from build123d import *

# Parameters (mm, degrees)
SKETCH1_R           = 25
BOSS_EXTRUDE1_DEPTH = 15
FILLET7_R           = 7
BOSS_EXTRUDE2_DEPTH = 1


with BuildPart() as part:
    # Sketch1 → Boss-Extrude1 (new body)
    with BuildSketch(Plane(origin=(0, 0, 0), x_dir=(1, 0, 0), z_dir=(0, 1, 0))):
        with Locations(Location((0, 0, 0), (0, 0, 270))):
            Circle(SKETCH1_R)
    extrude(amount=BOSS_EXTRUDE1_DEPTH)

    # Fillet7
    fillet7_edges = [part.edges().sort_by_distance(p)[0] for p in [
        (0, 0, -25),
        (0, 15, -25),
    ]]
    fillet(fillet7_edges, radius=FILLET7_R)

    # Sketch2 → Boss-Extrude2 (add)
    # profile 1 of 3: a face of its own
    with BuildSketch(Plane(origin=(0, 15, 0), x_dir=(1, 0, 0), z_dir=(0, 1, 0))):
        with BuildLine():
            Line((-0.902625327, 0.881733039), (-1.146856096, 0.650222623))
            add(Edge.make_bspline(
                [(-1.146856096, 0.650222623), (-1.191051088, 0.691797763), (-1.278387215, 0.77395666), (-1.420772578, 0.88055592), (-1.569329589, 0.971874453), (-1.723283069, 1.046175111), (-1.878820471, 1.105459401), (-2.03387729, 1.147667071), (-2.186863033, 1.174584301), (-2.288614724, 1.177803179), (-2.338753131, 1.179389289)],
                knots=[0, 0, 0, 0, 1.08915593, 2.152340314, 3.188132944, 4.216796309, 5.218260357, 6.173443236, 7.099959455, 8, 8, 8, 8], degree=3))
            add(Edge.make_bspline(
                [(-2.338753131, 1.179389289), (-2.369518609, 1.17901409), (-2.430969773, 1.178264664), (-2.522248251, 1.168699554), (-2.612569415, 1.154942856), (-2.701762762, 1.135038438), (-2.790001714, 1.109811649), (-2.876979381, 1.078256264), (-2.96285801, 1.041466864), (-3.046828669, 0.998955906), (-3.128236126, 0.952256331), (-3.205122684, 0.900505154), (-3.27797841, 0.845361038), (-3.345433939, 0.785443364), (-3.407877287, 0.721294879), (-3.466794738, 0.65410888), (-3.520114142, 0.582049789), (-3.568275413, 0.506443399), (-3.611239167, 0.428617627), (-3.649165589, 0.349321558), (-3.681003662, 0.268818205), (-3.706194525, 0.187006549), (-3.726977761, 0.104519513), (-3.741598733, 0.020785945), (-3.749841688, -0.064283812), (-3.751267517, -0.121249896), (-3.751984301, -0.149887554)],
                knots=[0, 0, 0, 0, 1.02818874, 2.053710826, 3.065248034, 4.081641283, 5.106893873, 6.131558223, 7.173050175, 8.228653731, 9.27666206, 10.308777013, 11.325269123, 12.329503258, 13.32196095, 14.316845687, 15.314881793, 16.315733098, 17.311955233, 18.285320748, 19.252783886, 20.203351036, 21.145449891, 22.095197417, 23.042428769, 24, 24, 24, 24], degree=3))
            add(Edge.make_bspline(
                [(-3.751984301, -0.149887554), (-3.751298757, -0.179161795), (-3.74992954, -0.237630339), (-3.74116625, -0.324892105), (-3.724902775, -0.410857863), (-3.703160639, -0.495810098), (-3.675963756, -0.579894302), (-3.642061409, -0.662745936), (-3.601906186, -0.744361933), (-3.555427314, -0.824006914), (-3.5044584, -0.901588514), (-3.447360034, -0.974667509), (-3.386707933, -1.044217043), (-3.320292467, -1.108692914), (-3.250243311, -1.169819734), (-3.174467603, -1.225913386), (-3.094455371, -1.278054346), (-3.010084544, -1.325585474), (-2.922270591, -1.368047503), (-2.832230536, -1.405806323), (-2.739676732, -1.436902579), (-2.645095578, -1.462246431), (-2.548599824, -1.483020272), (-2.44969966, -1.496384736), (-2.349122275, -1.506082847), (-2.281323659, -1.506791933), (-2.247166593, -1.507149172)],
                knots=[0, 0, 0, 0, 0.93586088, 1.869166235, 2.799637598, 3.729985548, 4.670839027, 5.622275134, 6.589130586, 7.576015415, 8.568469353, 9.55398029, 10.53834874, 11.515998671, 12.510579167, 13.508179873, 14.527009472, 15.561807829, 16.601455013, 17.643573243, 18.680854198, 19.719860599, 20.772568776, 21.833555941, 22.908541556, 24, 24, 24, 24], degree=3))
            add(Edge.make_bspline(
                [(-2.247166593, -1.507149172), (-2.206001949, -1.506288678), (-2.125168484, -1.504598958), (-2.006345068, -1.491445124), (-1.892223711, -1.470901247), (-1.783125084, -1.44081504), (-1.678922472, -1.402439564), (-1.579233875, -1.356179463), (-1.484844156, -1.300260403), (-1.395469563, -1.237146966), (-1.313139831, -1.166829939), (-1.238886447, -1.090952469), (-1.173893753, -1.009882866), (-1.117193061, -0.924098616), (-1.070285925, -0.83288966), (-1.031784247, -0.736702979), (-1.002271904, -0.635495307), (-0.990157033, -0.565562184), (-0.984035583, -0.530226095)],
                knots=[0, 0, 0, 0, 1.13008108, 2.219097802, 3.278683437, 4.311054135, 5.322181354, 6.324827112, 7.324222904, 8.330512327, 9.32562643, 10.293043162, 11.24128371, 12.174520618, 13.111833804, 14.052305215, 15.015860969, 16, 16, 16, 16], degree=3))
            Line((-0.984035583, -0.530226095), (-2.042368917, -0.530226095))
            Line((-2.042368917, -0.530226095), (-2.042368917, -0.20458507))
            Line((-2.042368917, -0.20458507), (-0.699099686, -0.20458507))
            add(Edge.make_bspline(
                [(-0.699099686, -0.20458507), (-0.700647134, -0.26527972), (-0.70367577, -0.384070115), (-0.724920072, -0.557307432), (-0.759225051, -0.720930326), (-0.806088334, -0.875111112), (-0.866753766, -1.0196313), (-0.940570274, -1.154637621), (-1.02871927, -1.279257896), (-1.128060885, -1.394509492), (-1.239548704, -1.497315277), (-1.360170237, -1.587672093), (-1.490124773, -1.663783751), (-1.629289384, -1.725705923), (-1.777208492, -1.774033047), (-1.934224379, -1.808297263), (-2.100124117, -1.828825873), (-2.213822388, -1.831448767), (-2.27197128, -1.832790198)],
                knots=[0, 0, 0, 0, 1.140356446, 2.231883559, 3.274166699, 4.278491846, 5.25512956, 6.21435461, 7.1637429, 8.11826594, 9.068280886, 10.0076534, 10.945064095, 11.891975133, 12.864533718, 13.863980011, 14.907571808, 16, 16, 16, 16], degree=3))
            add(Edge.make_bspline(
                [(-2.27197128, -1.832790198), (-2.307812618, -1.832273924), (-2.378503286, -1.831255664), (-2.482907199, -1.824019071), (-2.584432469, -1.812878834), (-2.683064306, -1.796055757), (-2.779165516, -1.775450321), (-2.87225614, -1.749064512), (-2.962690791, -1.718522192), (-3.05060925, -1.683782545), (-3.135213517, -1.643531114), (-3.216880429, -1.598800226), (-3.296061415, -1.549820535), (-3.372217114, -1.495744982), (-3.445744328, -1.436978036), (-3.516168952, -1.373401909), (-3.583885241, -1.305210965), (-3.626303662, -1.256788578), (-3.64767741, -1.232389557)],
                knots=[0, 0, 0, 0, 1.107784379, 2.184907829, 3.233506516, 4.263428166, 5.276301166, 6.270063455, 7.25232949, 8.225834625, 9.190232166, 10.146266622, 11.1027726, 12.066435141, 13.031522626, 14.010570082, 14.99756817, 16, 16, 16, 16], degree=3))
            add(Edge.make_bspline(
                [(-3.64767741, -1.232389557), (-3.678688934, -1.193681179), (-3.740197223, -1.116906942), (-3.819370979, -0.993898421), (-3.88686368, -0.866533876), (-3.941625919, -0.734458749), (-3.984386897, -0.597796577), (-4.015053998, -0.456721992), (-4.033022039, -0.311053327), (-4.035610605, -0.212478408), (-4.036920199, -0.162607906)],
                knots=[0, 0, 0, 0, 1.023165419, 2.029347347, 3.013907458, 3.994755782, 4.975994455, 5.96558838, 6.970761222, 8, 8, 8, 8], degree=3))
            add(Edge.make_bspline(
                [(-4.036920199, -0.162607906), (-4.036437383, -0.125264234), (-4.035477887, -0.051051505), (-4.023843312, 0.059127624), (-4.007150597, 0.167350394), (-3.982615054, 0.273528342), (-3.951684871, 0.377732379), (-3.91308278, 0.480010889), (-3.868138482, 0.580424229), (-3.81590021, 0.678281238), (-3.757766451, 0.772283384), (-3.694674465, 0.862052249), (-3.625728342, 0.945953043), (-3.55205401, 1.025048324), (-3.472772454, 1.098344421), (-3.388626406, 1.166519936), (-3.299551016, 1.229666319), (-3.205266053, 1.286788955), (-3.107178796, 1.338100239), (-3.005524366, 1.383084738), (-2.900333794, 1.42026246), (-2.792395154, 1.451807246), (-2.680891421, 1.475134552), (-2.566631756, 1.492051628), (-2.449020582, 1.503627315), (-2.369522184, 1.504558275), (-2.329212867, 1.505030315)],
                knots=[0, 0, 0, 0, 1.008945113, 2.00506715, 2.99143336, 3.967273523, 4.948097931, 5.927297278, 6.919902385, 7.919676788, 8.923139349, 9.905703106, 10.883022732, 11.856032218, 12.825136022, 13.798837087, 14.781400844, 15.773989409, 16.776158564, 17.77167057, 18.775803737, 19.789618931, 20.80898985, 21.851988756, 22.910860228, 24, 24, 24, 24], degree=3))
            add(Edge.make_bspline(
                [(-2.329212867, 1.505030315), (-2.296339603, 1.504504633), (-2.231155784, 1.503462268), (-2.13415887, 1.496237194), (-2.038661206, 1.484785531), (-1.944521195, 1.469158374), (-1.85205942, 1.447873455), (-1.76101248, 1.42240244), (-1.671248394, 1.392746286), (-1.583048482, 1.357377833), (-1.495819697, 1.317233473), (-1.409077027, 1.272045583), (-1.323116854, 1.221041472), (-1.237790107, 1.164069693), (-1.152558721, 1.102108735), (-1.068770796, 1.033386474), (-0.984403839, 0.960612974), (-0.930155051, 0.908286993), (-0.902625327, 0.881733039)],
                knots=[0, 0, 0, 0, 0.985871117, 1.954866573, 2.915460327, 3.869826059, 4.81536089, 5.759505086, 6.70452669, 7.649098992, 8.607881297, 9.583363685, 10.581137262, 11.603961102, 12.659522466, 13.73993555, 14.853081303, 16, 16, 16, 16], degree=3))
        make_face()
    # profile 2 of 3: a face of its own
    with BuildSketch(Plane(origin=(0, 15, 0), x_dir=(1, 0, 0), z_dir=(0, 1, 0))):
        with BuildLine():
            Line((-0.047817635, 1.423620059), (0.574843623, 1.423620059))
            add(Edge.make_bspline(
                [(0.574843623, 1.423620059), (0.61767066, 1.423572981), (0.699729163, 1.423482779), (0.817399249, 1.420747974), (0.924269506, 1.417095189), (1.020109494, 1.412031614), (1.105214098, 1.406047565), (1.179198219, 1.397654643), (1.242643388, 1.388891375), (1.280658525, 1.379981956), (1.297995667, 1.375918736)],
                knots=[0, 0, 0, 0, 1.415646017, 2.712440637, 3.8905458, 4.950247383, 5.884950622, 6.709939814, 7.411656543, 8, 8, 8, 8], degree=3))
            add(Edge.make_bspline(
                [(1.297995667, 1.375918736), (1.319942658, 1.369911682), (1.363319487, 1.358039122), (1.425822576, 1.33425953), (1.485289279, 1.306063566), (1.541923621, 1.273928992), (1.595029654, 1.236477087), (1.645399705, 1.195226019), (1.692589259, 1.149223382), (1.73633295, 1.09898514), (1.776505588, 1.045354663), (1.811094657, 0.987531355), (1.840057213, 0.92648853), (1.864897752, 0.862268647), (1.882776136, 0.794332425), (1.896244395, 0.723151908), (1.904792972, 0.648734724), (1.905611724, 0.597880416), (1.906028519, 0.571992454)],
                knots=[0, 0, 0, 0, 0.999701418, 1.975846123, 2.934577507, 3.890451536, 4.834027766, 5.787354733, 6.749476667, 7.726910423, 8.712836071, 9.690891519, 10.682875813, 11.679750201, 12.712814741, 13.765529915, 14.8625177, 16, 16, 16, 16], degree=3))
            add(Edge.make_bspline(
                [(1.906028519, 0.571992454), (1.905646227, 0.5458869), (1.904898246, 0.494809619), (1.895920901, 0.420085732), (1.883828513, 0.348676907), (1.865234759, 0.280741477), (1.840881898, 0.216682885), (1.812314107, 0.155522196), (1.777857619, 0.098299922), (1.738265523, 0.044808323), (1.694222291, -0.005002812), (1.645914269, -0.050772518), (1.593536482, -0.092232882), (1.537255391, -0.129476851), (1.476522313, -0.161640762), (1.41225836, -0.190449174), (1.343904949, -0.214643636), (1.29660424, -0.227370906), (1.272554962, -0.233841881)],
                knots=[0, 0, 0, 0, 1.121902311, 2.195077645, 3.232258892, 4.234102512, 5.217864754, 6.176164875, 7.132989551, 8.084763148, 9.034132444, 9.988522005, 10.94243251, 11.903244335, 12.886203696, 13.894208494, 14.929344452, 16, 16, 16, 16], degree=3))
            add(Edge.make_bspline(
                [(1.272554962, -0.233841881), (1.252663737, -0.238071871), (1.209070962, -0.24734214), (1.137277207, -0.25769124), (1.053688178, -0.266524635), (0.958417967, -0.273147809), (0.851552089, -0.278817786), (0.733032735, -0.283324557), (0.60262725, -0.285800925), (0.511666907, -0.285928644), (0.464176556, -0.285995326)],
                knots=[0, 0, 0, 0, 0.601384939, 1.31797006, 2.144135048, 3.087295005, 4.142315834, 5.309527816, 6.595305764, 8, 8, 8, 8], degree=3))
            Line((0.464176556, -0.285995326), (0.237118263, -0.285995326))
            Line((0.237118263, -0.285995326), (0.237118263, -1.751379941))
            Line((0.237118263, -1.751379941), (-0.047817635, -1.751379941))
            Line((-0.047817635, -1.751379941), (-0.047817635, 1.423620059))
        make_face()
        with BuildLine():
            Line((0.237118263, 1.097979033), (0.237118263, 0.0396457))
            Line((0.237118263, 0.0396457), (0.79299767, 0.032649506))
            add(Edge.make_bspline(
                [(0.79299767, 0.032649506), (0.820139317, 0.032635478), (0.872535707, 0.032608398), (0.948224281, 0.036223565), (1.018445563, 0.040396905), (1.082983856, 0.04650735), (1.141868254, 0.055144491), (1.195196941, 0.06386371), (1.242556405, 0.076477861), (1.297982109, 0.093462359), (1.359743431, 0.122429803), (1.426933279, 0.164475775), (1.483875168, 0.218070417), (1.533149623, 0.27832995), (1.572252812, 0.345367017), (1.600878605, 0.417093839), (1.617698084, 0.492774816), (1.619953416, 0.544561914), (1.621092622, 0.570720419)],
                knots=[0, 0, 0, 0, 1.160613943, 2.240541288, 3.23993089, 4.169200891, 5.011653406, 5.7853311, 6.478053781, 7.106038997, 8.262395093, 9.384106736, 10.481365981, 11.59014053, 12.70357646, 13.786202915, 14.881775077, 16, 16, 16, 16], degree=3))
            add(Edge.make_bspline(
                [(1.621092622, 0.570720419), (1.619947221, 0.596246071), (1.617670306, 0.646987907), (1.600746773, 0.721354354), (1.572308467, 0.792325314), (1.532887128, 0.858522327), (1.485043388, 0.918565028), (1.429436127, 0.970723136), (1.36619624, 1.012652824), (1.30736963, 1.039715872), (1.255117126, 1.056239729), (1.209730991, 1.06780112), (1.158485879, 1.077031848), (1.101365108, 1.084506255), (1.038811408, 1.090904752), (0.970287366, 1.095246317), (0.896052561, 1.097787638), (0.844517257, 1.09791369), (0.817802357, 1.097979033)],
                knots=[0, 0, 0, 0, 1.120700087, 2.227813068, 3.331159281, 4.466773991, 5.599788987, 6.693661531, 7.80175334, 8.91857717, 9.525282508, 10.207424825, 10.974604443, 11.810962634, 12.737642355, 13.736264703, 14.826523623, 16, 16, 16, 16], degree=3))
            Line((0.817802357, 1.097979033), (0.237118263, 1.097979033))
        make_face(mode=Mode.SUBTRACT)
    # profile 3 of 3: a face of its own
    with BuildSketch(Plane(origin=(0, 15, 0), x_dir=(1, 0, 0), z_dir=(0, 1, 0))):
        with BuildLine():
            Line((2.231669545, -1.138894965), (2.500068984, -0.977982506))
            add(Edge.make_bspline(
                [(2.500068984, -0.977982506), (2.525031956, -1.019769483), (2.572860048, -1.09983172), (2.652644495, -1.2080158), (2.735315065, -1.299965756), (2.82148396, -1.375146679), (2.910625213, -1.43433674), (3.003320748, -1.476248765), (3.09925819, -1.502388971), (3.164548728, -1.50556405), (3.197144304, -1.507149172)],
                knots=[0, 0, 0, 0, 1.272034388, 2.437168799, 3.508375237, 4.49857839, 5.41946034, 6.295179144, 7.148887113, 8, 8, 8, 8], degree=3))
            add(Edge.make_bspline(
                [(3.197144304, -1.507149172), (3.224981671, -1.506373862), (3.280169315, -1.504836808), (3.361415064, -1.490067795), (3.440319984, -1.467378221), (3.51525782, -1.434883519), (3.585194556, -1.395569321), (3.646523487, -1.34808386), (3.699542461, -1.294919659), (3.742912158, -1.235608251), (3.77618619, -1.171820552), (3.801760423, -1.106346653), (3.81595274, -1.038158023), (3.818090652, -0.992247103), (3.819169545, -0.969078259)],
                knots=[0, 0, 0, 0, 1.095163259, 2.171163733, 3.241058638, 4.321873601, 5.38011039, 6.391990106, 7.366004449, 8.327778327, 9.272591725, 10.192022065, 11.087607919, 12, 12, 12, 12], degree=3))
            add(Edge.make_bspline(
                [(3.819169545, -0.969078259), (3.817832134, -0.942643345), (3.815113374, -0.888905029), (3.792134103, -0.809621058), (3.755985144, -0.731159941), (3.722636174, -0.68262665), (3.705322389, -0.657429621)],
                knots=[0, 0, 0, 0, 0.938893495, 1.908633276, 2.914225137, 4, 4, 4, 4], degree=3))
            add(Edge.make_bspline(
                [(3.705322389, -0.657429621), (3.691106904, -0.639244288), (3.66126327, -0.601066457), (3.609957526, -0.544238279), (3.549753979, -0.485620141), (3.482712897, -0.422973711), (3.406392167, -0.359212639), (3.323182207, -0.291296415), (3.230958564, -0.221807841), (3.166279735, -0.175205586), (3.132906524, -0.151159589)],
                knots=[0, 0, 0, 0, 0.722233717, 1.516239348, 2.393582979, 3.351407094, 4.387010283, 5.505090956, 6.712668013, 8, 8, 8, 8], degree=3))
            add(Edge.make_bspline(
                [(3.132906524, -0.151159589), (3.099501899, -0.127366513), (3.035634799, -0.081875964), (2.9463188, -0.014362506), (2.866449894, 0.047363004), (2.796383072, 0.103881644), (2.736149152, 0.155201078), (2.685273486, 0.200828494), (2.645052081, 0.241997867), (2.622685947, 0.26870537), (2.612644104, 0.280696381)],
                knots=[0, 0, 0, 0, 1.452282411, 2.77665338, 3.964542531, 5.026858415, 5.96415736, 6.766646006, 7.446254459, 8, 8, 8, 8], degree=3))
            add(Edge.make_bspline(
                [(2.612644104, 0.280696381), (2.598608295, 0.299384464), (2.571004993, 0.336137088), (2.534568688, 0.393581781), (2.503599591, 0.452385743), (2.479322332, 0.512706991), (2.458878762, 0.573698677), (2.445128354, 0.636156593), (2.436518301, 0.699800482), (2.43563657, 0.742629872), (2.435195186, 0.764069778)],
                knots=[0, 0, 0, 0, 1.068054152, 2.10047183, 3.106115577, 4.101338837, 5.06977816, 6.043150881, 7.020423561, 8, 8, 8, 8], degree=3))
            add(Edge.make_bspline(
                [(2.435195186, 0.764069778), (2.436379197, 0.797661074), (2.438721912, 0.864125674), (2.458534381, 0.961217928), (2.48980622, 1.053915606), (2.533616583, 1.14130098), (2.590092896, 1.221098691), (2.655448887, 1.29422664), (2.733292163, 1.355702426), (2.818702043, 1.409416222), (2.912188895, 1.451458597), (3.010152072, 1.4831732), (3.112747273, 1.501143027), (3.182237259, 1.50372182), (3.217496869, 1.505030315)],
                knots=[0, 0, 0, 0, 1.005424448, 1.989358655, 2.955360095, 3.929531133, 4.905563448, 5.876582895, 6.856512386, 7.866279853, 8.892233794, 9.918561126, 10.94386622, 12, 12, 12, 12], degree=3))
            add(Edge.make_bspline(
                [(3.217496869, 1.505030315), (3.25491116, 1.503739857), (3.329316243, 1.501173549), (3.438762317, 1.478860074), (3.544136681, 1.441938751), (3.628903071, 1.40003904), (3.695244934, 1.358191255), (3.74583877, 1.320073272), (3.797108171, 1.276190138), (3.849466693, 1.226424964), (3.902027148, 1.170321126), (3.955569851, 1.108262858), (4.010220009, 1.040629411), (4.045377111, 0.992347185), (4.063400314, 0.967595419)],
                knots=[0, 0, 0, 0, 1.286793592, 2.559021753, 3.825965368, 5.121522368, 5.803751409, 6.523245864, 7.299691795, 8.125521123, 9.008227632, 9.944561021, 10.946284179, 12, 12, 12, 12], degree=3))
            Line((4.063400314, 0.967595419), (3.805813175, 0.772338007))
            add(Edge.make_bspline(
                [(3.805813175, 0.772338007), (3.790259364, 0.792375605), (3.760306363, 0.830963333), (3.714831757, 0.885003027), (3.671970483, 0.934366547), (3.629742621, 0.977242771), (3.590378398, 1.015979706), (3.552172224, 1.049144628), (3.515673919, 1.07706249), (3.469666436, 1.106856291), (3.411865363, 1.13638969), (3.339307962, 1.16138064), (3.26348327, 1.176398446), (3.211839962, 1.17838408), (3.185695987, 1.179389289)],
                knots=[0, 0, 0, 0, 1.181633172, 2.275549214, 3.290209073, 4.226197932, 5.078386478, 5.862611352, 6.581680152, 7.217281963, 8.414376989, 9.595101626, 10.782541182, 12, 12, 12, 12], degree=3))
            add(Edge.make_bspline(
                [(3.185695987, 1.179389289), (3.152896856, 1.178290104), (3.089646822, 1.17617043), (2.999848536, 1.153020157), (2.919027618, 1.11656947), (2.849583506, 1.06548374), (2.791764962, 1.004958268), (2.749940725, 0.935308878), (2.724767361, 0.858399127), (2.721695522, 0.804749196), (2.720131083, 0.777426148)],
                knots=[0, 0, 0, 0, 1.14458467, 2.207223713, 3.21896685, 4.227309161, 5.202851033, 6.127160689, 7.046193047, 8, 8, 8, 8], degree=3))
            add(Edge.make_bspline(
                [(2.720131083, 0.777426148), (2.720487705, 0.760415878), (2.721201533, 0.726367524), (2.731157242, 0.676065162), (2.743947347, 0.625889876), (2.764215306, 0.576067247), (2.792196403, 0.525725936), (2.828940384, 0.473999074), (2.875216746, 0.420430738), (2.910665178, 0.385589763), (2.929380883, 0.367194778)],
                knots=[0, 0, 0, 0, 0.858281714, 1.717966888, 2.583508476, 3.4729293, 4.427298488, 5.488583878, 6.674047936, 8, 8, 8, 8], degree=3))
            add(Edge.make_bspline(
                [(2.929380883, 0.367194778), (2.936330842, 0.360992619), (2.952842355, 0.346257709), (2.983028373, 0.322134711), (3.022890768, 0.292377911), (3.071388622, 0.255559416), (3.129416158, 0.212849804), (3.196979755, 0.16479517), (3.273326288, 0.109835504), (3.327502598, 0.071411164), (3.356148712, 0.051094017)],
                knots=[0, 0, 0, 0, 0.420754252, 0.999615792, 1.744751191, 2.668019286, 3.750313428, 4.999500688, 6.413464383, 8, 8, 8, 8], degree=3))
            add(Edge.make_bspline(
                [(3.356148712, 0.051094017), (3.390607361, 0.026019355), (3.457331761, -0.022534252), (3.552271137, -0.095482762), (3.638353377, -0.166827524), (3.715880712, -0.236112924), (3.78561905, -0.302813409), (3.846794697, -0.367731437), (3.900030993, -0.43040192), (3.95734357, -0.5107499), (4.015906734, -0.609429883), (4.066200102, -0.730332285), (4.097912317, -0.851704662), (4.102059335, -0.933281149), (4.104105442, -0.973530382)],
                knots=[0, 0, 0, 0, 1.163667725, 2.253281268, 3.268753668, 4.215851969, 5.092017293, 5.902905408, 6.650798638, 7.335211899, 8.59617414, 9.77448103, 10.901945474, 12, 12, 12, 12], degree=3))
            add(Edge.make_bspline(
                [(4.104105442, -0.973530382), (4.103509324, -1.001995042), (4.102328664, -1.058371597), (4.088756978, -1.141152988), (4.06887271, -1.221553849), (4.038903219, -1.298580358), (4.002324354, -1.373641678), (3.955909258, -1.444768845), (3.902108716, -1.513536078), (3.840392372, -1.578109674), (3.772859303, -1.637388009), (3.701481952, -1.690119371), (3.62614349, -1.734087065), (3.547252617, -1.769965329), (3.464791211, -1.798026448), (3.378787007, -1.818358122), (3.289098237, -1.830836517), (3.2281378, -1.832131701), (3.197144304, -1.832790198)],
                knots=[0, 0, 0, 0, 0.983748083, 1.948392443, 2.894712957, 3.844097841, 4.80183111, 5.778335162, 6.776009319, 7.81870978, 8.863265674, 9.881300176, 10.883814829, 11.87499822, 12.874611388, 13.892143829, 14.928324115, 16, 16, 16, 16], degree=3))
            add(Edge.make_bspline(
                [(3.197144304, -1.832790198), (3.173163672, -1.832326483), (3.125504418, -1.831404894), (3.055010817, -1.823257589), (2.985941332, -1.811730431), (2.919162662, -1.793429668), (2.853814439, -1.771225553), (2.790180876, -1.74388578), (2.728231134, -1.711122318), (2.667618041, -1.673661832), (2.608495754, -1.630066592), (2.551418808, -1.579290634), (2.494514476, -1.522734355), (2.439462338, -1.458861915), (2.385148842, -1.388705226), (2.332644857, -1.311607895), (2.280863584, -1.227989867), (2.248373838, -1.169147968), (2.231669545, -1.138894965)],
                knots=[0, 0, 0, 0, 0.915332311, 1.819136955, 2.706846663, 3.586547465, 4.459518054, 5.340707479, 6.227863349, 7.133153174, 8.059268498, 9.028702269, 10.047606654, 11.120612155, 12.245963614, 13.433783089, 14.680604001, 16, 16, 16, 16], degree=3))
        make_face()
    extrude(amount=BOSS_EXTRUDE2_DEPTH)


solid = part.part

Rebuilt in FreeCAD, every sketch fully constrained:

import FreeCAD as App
import Part
import Sketcher
Q = App.Units.Quantity


def edges_at(feature, points):
    """Names of the edges that pass closest to the given points."""
    edges = feature.Shape.Edges
    near = lambda p: min(range(len(edges)), key=lambda i: edges[i].distToShape(Part.Vertex(*p))[0])
    return sorted({f"Edge{near(p) + 1}" for p in points})

doc = App.newDocument("Part")
body = doc.addObject("PartDesign::Body", "Body")

# Sketch on XZ plane
sketch1 = body.newObject("Sketcher::SketchObject", "Sketch")
sketch1.AttachmentSupport = (doc.getObject("XZ_Plane"), [""])
sketch1.MapMode = "FlatFace"
sketch1.addGeometry(Part.Circle(App.Vector(0, 0, 0), App.Vector(0, 0, 1), 25), False)
sketch1.addConstraint([
    Sketcher.Constraint("Coincident", 0, 3, -1, 1),
    Sketcher.Constraint("Diameter", 0, Q("50 mm")),
])
pad1 = body.newObject("PartDesign::Pad", "Pad")
pad1.Profile = sketch1
pad1.Length = 15
pad1.Reversed = True
doc.recompute()

fillet = body.newObject("PartDesign::Fillet", "Fillet")
fillet.Base = (pad1, edges_at(pad1, [(0, 0, -25), (0, 15, -25)]))
fillet.Radius = 7

# Sketch on XZ plane
sketch2 = body.newObject("Sketcher::SketchObject", "Sketch001")
sketch2.AttachmentSupport = (doc.getObject("XZ_Plane"), [""])
sketch2.MapMode = "FlatFace"
sketch2.AttachmentOffset = App.Placement(App.Vector(0, 0, -15), App.Rotation())
sketch2.addGeometry([
    Part.LineSegment(App.Vector(-1.146856, -0.650223, 0), App.Vector(-0.902625, -0.881733, 0)),  # 0
    Part.BSplineCurve([App.Vector(-2.329213, -1.50503, 0), App.Vector(-2.29634, -1.504505, 0), App.Vector(-2.231156, -1.503462, 0), App.Vector(-2.134159, -1.496237, 0), App.Vector(-2.038661, -1.484786, 0), App.Vector(-1.944521, -1.469158, 0), App.Vector(-1.852059, -1.447873, 0), App.Vector(-1.761012, -1.422402, 0), App.Vector(-1.671248, -1.392746, 0), App.Vector(-1.583048, -1.357378, 0), App.Vector(-1.49582, -1.317233, 0), App.Vector(-1.409077, -1.272046, 0), App.Vector(-1.323117, -1.221041, 0), App.Vector(-1.23779, -1.16407, 0), App.Vector(-1.152559, -1.102109, 0), App.Vector(-1.068771, -1.033386, 0), App.Vector(-0.984404, -0.960613, 0), App.Vector(-0.930155, -0.908287, 0), App.Vector(-0.902625, -0.881733, 0)], [4, 1, 1, 1, 1, 1, 1, 1, 1, 1, 1, 1, 1, 1, 1, 1, 4], [0, 0.985871117, 1.954866573, 2.915460327, 3.869826059, 4.81536089, 5.759505086, 6.70452669, 7.649098992, 8.607881297, 9.583363685, 10.581137262, 11.603961102, 12.659522466, 13.73993555, 14.853081303, 16], False, 3, [1, 1, 1, 1, 1, 1, 1, 1, 1, 1, 1, 1, 1, 1, 1, 1, 1, 1, 1], False),  # 1
    Part.BSplineCurve([App.Vector(-4.03692, 0.162608, 0), App.Vector(-4.036437, 0.125264, 0), App.Vector(-4.035478, 0.051052, 0), App.Vector(-4.023843, -0.059128, 0), App.Vector(-4.007151, -0.16735, 0), App.Vector(-3.982615, -0.273528, 0), App.Vector(-3.951685, -0.377732, 0), App.Vector(-3.913083, -0.480011, 0), App.Vector(-3.868138, -0.580424, 0), App.Vector(-3.8159, -0.678281, 0), App.Vector(-3.757766, -0.772283, 0), App.Vector(-3.694674, -0.862052, 0), App.Vector(-3.625728, -0.945953, 0), App.Vector(-3.552054, -1.025048, 0), App.Vector(-3.472772, -1.098344, 0), App.Vector(-3.388626, -1.16652, 0), App.Vector(-3.299551, -1.229666, 0), App.Vector(-3.205266, -1.286789, 0), App.Vector(-3.107179, -1.3381, 0), App.Vector(-3.005524, -1.383085, 0), App.Vector(-2.900334, -1.420262, 0), App.Vector(-2.792395, -1.451807, 0), App.Vector(-2.680891, -1.475135, 0), App.Vector(-2.566632, -1.492052, 0), App.Vector(-2.449021, -1.503627, 0), App.Vector(-2.369522, -1.504558, 0), App.Vector(-2.329213, -1.50503, 0)], [4, 1, 1, 1, 1, 1, 1, 1, 1, 1, 1, 1, 1, 1, 1, 1, 1, 1, 1, 1, 1, 1, 1, 1, 4], [0, 1.008945113, 2.00506715, 2.99143336, 3.967273523, 4.948097931, 5.927297278, 6.919902385, 7.919676788, 8.923139349, 9.905703106, 10.883022732, 11.856032218, 12.825136022, 13.798837087, 14.781400844, 15.773989409, 16.776158564, 17.77167057, 18.775803737, 19.789618931, 20.80898985, 21.851988756, 22.910860228, 24], False, 3, [1, 1, 1, 1, 1, 1, 1, 1, 1, 1, 1, 1, 1, 1, 1, 1, 1, 1, 1, 1, 1, 1, 1, 1, 1, 1, 1], False),  # 2
    Part.BSplineCurve([App.Vector(-3.647677, 1.23239, 0), App.Vector(-3.678689, 1.193681, 0), App.Vector(-3.740197, 1.116907, 0), App.Vector(-3.819371, 0.993898, 0), App.Vector(-3.886864, 0.866534, 0), App.Vector(-3.941626, 0.734459, 0), App.Vector(-3.984387, 0.597797, 0), App.Vector(-4.015054, 0.456722, 0), App.Vector(-4.033022, 0.311053, 0), App.Vector(-4.035611, 0.212478, 0), App.Vector(-4.03692, 0.162608, 0)], [4, 1, 1, 1, 1, 1, 1, 1, 4], [0, 1.023165419, 2.029347347, 3.013907458, 3.994755782, 4.975994455, 5.96558838, 6.970761222, 8], False, 3, [1, 1, 1, 1, 1, 1, 1, 1, 1, 1, 1], False),  # 3
    Part.BSplineCurve([App.Vector(-2.271971, 1.83279, 0), App.Vector(-2.307813, 1.832274, 0), App.Vector(-2.378503, 1.831256, 0), App.Vector(-2.482907, 1.824019, 0), App.Vector(-2.584432, 1.812879, 0), App.Vector(-2.683064, 1.796056, 0), App.Vector(-2.779166, 1.77545, 0), App.Vector(-2.872256, 1.749065, 0), App.Vector(-2.962691, 1.718522, 0), App.Vector(-3.050609, 1.683783, 0), App.Vector(-3.135214, 1.643531, 0), App.Vector(-3.21688, 1.5988, 0), App.Vector(-3.296061, 1.549821, 0), App.Vector(-3.372217, 1.495745, 0), App.Vector(-3.445744, 1.436978, 0), App.Vector(-3.516169, 1.373402, 0), App.Vector(-3.583885, 1.305211, 0), App.Vector(-3.626304, 1.256789, 0), App.Vector(-3.647677, 1.23239, 0)], [4, 1, 1, 1, 1, 1, 1, 1, 1, 1, 1, 1, 1, 1, 1, 1, 4], [0, 1.107784379, 2.184907829, 3.233506516, 4.263428166, 5.276301166, 6.270063455, 7.25232949, 8.225834625, 9.190232166, 10.146266622, 11.1027726, 12.066435141, 13.031522626, 14.010570082, 14.99756817, 16], False, 3, [1, 1, 1, 1, 1, 1, 1, 1, 1, 1, 1, 1, 1, 1, 1, 1, 1, 1, 1], False),  # 4
    Part.BSplineCurve([App.Vector(-0.6991, 0.204585, 0), App.Vector(-0.700647, 0.26528, 0), App.Vector(-0.703676, 0.38407, 0), App.Vector(-0.72492, 0.557307, 0), App.Vector(-0.759225, 0.72093, 0), App.Vector(-0.806088, 0.875111, 0), App.Vector(-0.866754, 1.019631, 0), App.Vector(-0.94057, 1.154638, 0), App.Vector(-1.028719, 1.279258, 0), App.Vector(-1.128061, 1.394509, 0), App.Vector(-1.239549, 1.497315, 0), App.Vector(-1.36017, 1.587672, 0), App.Vector(-1.490125, 1.663784, 0), App.Vector(-1.629289, 1.725706, 0), App.Vector(-1.777208, 1.774033, 0), App.Vector(-1.934224, 1.808297, 0), App.Vector(-2.100124, 1.828826, 0), App.Vector(-2.213822, 1.831449, 0), App.Vector(-2.271971, 1.83279, 0)], [4, 1, 1, 1, 1, 1, 1, 1, 1, 1, 1, 1, 1, 1, 1, 1, 4], [0, 1.140356446, 2.231883559, 3.274166699, 4.278491846, 5.25512956, 6.21435461, 7.1637429, 8.11826594, 9.068280886, 10.0076534, 10.945064095, 11.891975133, 12.864533718, 13.863980011, 14.907571808, 16], False, 3, [1, 1, 1, 1, 1, 1, 1, 1, 1, 1, 1, 1, 1, 1, 1, 1, 1, 1, 1], False),  # 5
    Part.LineSegment(App.Vector(-0.6991, 0.204585, 0), App.Vector(-2.042369, 0.204585, 0)),  # 6
    Part.LineSegment(App.Vector(-2.042369, 0.204585, 0), App.Vector(-2.042369, 0.530226, 0)),  # 7
    Part.LineSegment(App.Vector(-2.042369, 0.530226, 0), App.Vector(-0.984036, 0.530226, 0)),  # 8
    Part.BSplineCurve([App.Vector(-2.247167, 1.507149, 0), App.Vector(-2.206002, 1.506289, 0), App.Vector(-2.125168, 1.504599, 0), App.Vector(-2.006345, 1.491445, 0), App.Vector(-1.892224, 1.470901, 0), App.Vector(-1.783125, 1.440815, 0), App.Vector(-1.678922, 1.40244, 0), App.Vector(-1.579234, 1.356179, 0), App.Vector(-1.484844, 1.30026, 0), App.Vector(-1.39547, 1.237147, 0), App.Vector(-1.31314, 1.16683, 0), App.Vector(-1.238886, 1.090952, 0), App.Vector(-1.173894, 1.009883, 0), App.Vector(-1.117193, 0.924099, 0), App.Vector(-1.070286, 0.83289, 0), App.Vector(-1.031784, 0.736703, 0), App.Vector(-1.002272, 0.635495, 0), App.Vector(-0.990157, 0.565562, 0), App.Vector(-0.984036, 0.530226, 0)], [4, 1, 1, 1, 1, 1, 1, 1, 1, 1, 1, 1, 1, 1, 1, 1, 4], [0, 1.13008108, 2.219097802, 3.278683437, 4.311054135, 5.322181354, 6.324827112, 7.324222904, 8.330512327, 9.32562643, 10.293043162, 11.24128371, 12.174520618, 13.111833804, 14.052305215, 15.015860969, 16], False, 3, [1, 1, 1, 1, 1, 1, 1, 1, 1, 1, 1, 1, 1, 1, 1, 1, 1, 1, 1], False),  # 9
    Part.BSplineCurve([App.Vector(-3.751984, 0.149888, 0), App.Vector(-3.751299, 0.179162, 0), App.Vector(-3.74993, 0.23763, 0), App.Vector(-3.741166, 0.324892, 0), App.Vector(-3.724903, 0.410858, 0), App.Vector(-3.703161, 0.49581, 0), App.Vector(-3.675964, 0.579894, 0), App.Vector(-3.642061, 0.662746, 0), App.Vector(-3.601906, 0.744362, 0), App.Vector(-3.555427, 0.824007, 0), App.Vector(-3.504458, 0.901589, 0), App.Vector(-3.44736, 0.974668, 0), App.Vector(-3.386708, 1.044217, 0), App.Vector(-3.320292, 1.108693, 0), App.Vector(-3.250243, 1.16982, 0), App.Vector(-3.174468, 1.225913, 0), App.Vector(-3.094455, 1.278054, 0), App.Vector(-3.010085, 1.325585, 0), App.Vector(-2.922271, 1.368048, 0), App.Vector(-2.832231, 1.405806, 0), App.Vector(-2.739677, 1.436903, 0), App.Vector(-2.645096, 1.462246, 0), App.Vector(-2.5486, 1.48302, 0), App.Vector(-2.4497, 1.496385, 0), App.Vector(-2.349122, 1.506083, 0), App.Vector(-2.281324, 1.506792, 0), App.Vector(-2.247167, 1.507149, 0)], [4, 1, 1, 1, 1, 1, 1, 1, 1, 1, 1, 1, 1, 1, 1, 1, 1, 1, 1, 1, 1, 1, 1, 1, 4], [0, 0.93586088, 1.869166235, 2.799637598, 3.729985548, 4.670839027, 5.622275134, 6.589130586, 7.576015415, 8.568469353, 9.55398029, 10.53834874, 11.515998671, 12.510579167, 13.508179873, 14.527009472, 15.561807829, 16.601455013, 17.643573243, 18.680854198, 19.719860599, 20.772568776, 21.833555941, 22.908541556, 24], False, 3, [1, 1, 1, 1, 1, 1, 1, 1, 1, 1, 1, 1, 1, 1, 1, 1, 1, 1, 1, 1, 1, 1, 1, 1, 1, 1, 1], False),  # 10
    Part.BSplineCurve([App.Vector(-2.338753, -1.179389, 0), App.Vector(-2.369519, -1.179014, 0), App.Vector(-2.43097, -1.178265, 0), App.Vector(-2.522248, -1.1687, 0), App.Vector(-2.612569, -1.154943, 0), App.Vector(-2.701763, -1.135038, 0), App.Vector(-2.790002, -1.109812, 0), App.Vector(-2.876979, -1.078256, 0), App.Vector(-2.962858, -1.041467, 0), App.Vector(-3.046829, -0.998956, 0), App.Vector(-3.128236, -0.952256, 0), App.Vector(-3.205123, -0.900505, 0), App.Vector(-3.277978, -0.845361, 0), App.Vector(-3.345434, -0.785443, 0), App.Vector(-3.407877, -0.721295, 0), App.Vector(-3.466795, -0.654109, 0), App.Vector(-3.520114, -0.58205, 0), App.Vector(-3.568275, -0.506443, 0), App.Vector(-3.611239, -0.428618, 0), App.Vector(-3.649166, -0.349322, 0), App.Vector(-3.681004, -0.268818, 0), App.Vector(-3.706195, -0.187007, 0), App.Vector(-3.726978, -0.10452, 0), App.Vector(-3.741599, -0.020786, 0), App.Vector(-3.749842, 0.064284, 0), App.Vector(-3.751268, 0.12125, 0), App.Vector(-3.751984, 0.149888, 0)], [4, 1, 1, 1, 1, 1, 1, 1, 1, 1, 1, 1, 1, 1, 1, 1, 1, 1, 1, 1, 1, 1, 1, 1, 4], [0, 1.02818874, 2.053710826, 3.065248034, 4.081641283, 5.106893873, 6.131558223, 7.173050175, 8.228653731, 9.27666206, 10.308777013, 11.325269123, 12.329503258, 13.32196095, 14.316845687, 15.314881793, 16.315733098, 17.311955233, 18.285320748, 19.252783886, 20.203351036, 21.145449891, 22.095197417, 23.042428769, 24], False, 3, [1, 1, 1, 1, 1, 1, 1, 1, 1, 1, 1, 1, 1, 1, 1, 1, 1, 1, 1, 1, 1, 1, 1, 1, 1, 1, 1], False),  # 11
    Part.BSplineCurve([App.Vector(-1.146856, -0.650223, 0), App.Vector(-1.191051, -0.691798, 0), App.Vector(-1.278387, -0.773957, 0), App.Vector(-1.420773, -0.880556, 0), App.Vector(-1.56933, -0.971874, 0), App.Vector(-1.723283, -1.046175, 0), App.Vector(-1.87882, -1.105459, 0), App.Vector(-2.033877, -1.147667, 0), App.Vector(-2.186863, -1.174584, 0), App.Vector(-2.288615, -1.177803, 0), App.Vector(-2.338753, -1.179389, 0)], [4, 1, 1, 1, 1, 1, 1, 1, 4], [0, 1.08915593, 2.152340314, 3.188132944, 4.216796309, 5.218260357, 6.173443236, 7.099959455, 8], False, 3, [1, 1, 1, 1, 1, 1, 1, 1, 1, 1, 1], False),  # 12
    Part.LineSegment(App.Vector(0.574844, -1.42362, 0), App.Vector(-0.047818, -1.42362, 0)),  # 13
    Part.LineSegment(App.Vector(-0.047818, -1.42362, 0), App.Vector(-0.047818, 1.75138, 0)),  # 14
    Part.LineSegment(App.Vector(-0.047818, 1.75138, 0), App.Vector(0.237118, 1.75138, 0)),  # 15
    Part.LineSegment(App.Vector(0.237118, 1.75138, 0), App.Vector(0.237118, 0.285995, 0)),  # 16
    Part.LineSegment(App.Vector(0.237118, 0.285995, 0), App.Vector(0.464177, 0.285995, 0)),  # 17
    Part.BSplineCurve([App.Vector(1.272555, 0.233842, 0), App.Vector(1.252664, 0.238072, 0), App.Vector(1.209071, 0.247342, 0), App.Vector(1.137277, 0.257691, 0), App.Vector(1.053688, 0.266525, 0), App.Vector(0.958418, 0.273148, 0), App.Vector(0.851552, 0.278818, 0), App.Vector(0.733033, 0.283325, 0), App.Vector(0.602627, 0.285801, 0), App.Vector(0.511667, 0.285929, 0), App.Vector(0.464177, 0.285995, 0)], [4, 1, 1, 1, 1, 1, 1, 1, 4], [0, 0.601384939, 1.31797006, 2.144135048, 3.087295005, 4.142315834, 5.309527816, 6.595305764, 8], False, 3, [1, 1, 1, 1, 1, 1, 1, 1, 1, 1, 1], False),  # 18
    Part.BSplineCurve([App.Vector(1.906029, -0.571992, 0), App.Vector(1.905646, -0.545887, 0), App.Vector(1.904898, -0.49481, 0), App.Vector(1.895921, -0.420086, 0), App.Vector(1.883829, -0.348677, 0), App.Vector(1.865235, -0.280741, 0), App.Vector(1.840882, -0.216683, 0), App.Vector(1.812314, -0.155522, 0), App.Vector(1.777858, -0.0983, 0), App.Vector(1.738266, -0.044808, 0), App.Vector(1.694222, 0.005003, 0), App.Vector(1.645914, 0.050773, 0), App.Vector(1.593536, 0.092233, 0), App.Vector(1.537255, 0.129477, 0), App.Vector(1.476522, 0.161641, 0), App.Vector(1.412258, 0.190449, 0), App.Vector(1.343905, 0.214644, 0), App.Vector(1.296604, 0.227371, 0), App.Vector(1.272555, 0.233842, 0)], [4, 1, 1, 1, 1, 1, 1, 1, 1, 1, 1, 1, 1, 1, 1, 1, 4], [0, 1.121902311, 2.195077645, 3.232258892, 4.234102512, 5.217864754, 6.176164875, 7.132989551, 8.084763148, 9.034132444, 9.988522005, 10.94243251, 11.903244335, 12.886203696, 13.894208494, 14.929344452, 16], False, 3, [1, 1, 1, 1, 1, 1, 1, 1, 1, 1, 1, 1, 1, 1, 1, 1, 1, 1, 1], False),  # 19
    Part.BSplineCurve([App.Vector(1.297996, -1.375919, 0), App.Vector(1.319943, -1.369912, 0), App.Vector(1.363319, -1.358039, 0), App.Vector(1.425823, -1.33426, 0), App.Vector(1.485289, -1.306064, 0), App.Vector(1.541924, -1.273929, 0), App.Vector(1.59503, -1.236477, 0), App.Vector(1.6454, -1.195226, 0), App.Vector(1.692589, -1.149223, 0), App.Vector(1.736333, -1.098985, 0), App.Vector(1.776506, -1.045355, 0), App.Vector(1.811095, -0.987531, 0), App.Vector(1.840057, -0.926489, 0), App.Vector(1.864898, -0.862269, 0), App.Vector(1.882776, -0.794332, 0), App.Vector(1.896244, -0.723152, 0), App.Vector(1.904793, -0.648735, 0), App.Vector(1.905612, -0.59788, 0), App.Vector(1.906029, -0.571992, 0)], [4, 1, 1, 1, 1, 1, 1, 1, 1, 1, 1, 1, 1, 1, 1, 1, 4], [0, 0.999701418, 1.975846123, 2.934577507, 3.890451536, 4.834027766, 5.787354733, 6.749476667, 7.726910423, 8.712836071, 9.690891519, 10.682875813, 11.679750201, 12.712814741, 13.765529915, 14.8625177, 16], False, 3, [1, 1, 1, 1, 1, 1, 1, 1, 1, 1, 1, 1, 1, 1, 1, 1, 1, 1, 1], False),  # 20
    Part.BSplineCurve([App.Vector(0.574844, -1.42362, 0), App.Vector(0.617671, -1.423573, 0), App.Vector(0.699729, -1.423483, 0), App.Vector(0.817399, -1.420748, 0), App.Vector(0.92427, -1.417095, 0), App.Vector(1.020109, -1.412032, 0), App.Vector(1.105214, -1.406048, 0), App.Vector(1.179198, -1.397655, 0), App.Vector(1.242643, -1.388891, 0), App.Vector(1.280659, -1.379982, 0), App.Vector(1.297996, -1.375919, 0)], [4, 1, 1, 1, 1, 1, 1, 1, 4], [0, 1.415646017, 2.712440637, 3.8905458, 4.950247383, 5.884950622, 6.709939814, 7.411656543, 8], False, 3, [1, 1, 1, 1, 1, 1, 1, 1, 1, 1, 1], False),  # 21
    Part.LineSegment(App.Vector(0.237118, -1.097979, 0), App.Vector(0.817802, -1.097979, 0)),  # 22
    Part.BSplineCurve([App.Vector(1.621093, -0.57072, 0), App.Vector(1.619947, -0.596246, 0), App.Vector(1.61767, -0.646988, 0), App.Vector(1.600747, -0.721354, 0), App.Vector(1.572308, -0.792325, 0), App.Vector(1.532887, -0.858522, 0), App.Vector(1.485043, -0.918565, 0), App.Vector(1.429436, -0.970723, 0), App.Vector(1.366196, -1.012653, 0), App.Vector(1.30737, -1.039716, 0), App.Vector(1.255117, -1.05624, 0), App.Vector(1.209731, -1.067801, 0), App.Vector(1.158486, -1.077032, 0), App.Vector(1.101365, -1.084506, 0), App.Vector(1.038811, -1.090905, 0), App.Vector(0.970287, -1.095246, 0), App.Vector(0.896053, -1.097788, 0), App.Vector(0.844517, -1.097914, 0), App.Vector(0.817802, -1.097979, 0)], [4, 1, 1, 1, 1, 1, 1, 1, 1, 1, 1, 1, 1, 1, 1, 1, 4], [0, 1.120700087, 2.227813068, 3.331159281, 4.466773991, 5.599788987, 6.693661531, 7.80175334, 8.91857717, 9.525282508, 10.207424825, 10.974604443, 11.810962634, 12.737642355, 13.736264703, 14.826523623, 16], False, 3, [1, 1, 1, 1, 1, 1, 1, 1, 1, 1, 1, 1, 1, 1, 1, 1, 1, 1, 1], False),  # 23
    Part.BSplineCurve([App.Vector(0.792998, -0.03265, 0), App.Vector(0.820139, -0.032635, 0), App.Vector(0.872536, -0.032608, 0), App.Vector(0.948224, -0.036224, 0), App.Vector(1.018446, -0.040397, 0), App.Vector(1.082984, -0.046507, 0), App.Vector(1.141868, -0.055144, 0), App.Vector(1.195197, -0.063864, 0), App.Vector(1.242556, -0.076478, 0), App.Vector(1.297982, -0.093462, 0), App.Vector(1.359743, -0.12243, 0), App.Vector(1.426933, -0.164476, 0), App.Vector(1.483875, -0.21807, 0), App.Vector(1.53315, -0.27833, 0), App.Vector(1.572253, -0.345367, 0), App.Vector(1.600879, -0.417094, 0), App.Vector(1.617698, -0.492775, 0), App.Vector(1.619953, -0.544562, 0), App.Vector(1.621093, -0.57072, 0)], [4, 1, 1, 1, 1, 1, 1, 1, 1, 1, 1, 1, 1, 1, 1, 1, 4], [0, 1.160613943, 2.240541288, 3.23993089, 4.169200891, 5.011653406, 5.7853311, 6.478053781, 7.106038997, 8.262395093, 9.384106736, 10.481365981, 11.59014053, 12.70357646, 13.786202915, 14.881775077, 16], False, 3, [1, 1, 1, 1, 1, 1, 1, 1, 1, 1, 1, 1, 1, 1, 1, 1, 1, 1, 1], False),  # 24
    Part.LineSegment(App.Vector(0.792998, -0.03265, 0), App.Vector(0.237118, -0.039646, 0)),  # 25
    Part.LineSegment(App.Vector(0.237118, -0.039646, 0), App.Vector(0.237118, -1.097979, 0)),  # 26
    Part.LineSegment(App.Vector(2.500069, 0.977983, 0), App.Vector(2.23167, 1.138895, 0)),  # 27
    Part.BSplineCurve([App.Vector(3.197144, 1.83279, 0), App.Vector(3.173164, 1.832326, 0), App.Vector(3.125504, 1.831405, 0), App.Vector(3.055011, 1.823258, 0), App.Vector(2.985941, 1.81173, 0), App.Vector(2.919163, 1.79343, 0), App.Vector(2.853814, 1.771226, 0), App.Vector(2.790181, 1.743886, 0), App.Vector(2.728231, 1.711122, 0), App.Vector(2.667618, 1.673662, 0), App.Vector(2.608496, 1.630067, 0), App.Vector(2.551419, 1.579291, 0), App.Vector(2.494514, 1.522734, 0), App.Vector(2.439462, 1.458862, 0), App.Vector(2.385149, 1.388705, 0), App.Vector(2.332645, 1.311608, 0), App.Vector(2.280864, 1.22799, 0), App.Vector(2.248374, 1.169148, 0), App.Vector(2.23167, 1.138895, 0)], [4, 1, 1, 1, 1, 1, 1, 1, 1, 1, 1, 1, 1, 1, 1, 1, 4], [0, 0.915332311, 1.819136955, 2.706846663, 3.586547465, 4.459518054, 5.340707479, 6.227863349, 7.133153174, 8.059268498, 9.028702269, 10.047606654, 11.120612155, 12.245963614, 13.433783089, 14.680604001, 16], False, 3, [1, 1, 1, 1, 1, 1, 1, 1, 1, 1, 1, 1, 1, 1, 1, 1, 1, 1, 1], False),  # 28
    Part.BSplineCurve([App.Vector(4.104105, 0.97353, 0), App.Vector(4.103509, 1.001995, 0), App.Vector(4.102329, 1.058372, 0), App.Vector(4.088757, 1.141153, 0), App.Vector(4.068873, 1.221554, 0), App.Vector(4.038903, 1.29858, 0), App.Vector(4.002324, 1.373642, 0), App.Vector(3.955909, 1.444769, 0), App.Vector(3.902109, 1.513536, 0), App.Vector(3.840392, 1.57811, 0), App.Vector(3.772859, 1.637388, 0), App.Vector(3.701482, 1.690119, 0), App.Vector(3.626143, 1.734087, 0), App.Vector(3.547253, 1.769965, 0), App.Vector(3.464791, 1.798026, 0), App.Vector(3.378787, 1.818358, 0), App.Vector(3.289098, 1.830837, 0), App.Vector(3.228138, 1.832132, 0), App.Vector(3.197144, 1.83279, 0)], [4, 1, 1, 1, 1, 1, 1, 1, 1, 1, 1, 1, 1, 1, 1, 1, 4], [0, 0.983748083, 1.948392443, 2.894712957, 3.844097841, 4.80183111, 5.778335162, 6.776009319, 7.81870978, 8.863265674, 9.881300176, 10.883814829, 11.87499822, 12.874611388, 13.892143829, 14.928324115, 16], False, 3, [1, 1, 1, 1, 1, 1, 1, 1, 1, 1, 1, 1, 1, 1, 1, 1, 1, 1, 1], False),  # 29
    Part.BSplineCurve([App.Vector(3.356149, -0.051094, 0), App.Vector(3.390607, -0.026019, 0), App.Vector(3.457332, 0.022534, 0), App.Vector(3.552271, 0.095483, 0), App.Vector(3.638353, 0.166828, 0), App.Vector(3.715881, 0.236113, 0), App.Vector(3.785619, 0.302813, 0), App.Vector(3.846795, 0.367731, 0), App.Vector(3.900031, 0.430402, 0), App.Vector(3.957344, 0.51075, 0), App.Vector(4.015907, 0.60943, 0), App.Vector(4.0662, 0.730332, 0), App.Vector(4.097912, 0.851705, 0), App.Vector(4.102059, 0.933281, 0), App.Vector(4.104105, 0.97353, 0)], [4, 1, 1, 1, 1, 1, 1, 1, 1, 1, 1, 1, 4], [0, 1.163667725, 2.253281268, 3.268753668, 4.215851969, 5.092017293, 5.902905408, 6.650798638, 7.335211899, 8.59617414, 9.77448103, 10.901945474, 12], False, 3, [1, 1, 1, 1, 1, 1, 1, 1, 1, 1, 1, 1, 1, 1, 1], False),  # 30
    Part.BSplineCurve([App.Vector(2.929381, -0.367195, 0), App.Vector(2.936331, -0.360993, 0), App.Vector(2.952842, -0.346258, 0), App.Vector(2.983028, -0.322135, 0), App.Vector(3.022891, -0.292378, 0), App.Vector(3.071389, -0.255559, 0), App.Vector(3.129416, -0.21285, 0), App.Vector(3.19698, -0.164795, 0), App.Vector(3.273326, -0.109836, 0), App.Vector(3.327503, -0.071411, 0), App.Vector(3.356149, -0.051094, 0)], [4, 1, 1, 1, 1, 1, 1, 1, 4], [0, 0.420754252, 0.999615792, 1.744751191, 2.668019286, 3.750313428, 4.999500688, 6.413464383, 8], False, 3, [1, 1, 1, 1, 1, 1, 1, 1, 1, 1, 1], False),  # 31
    Part.BSplineCurve([App.Vector(2.720131, -0.777426, 0), App.Vector(2.720488, -0.760416, 0), App.Vector(2.721202, -0.726368, 0), App.Vector(2.731157, -0.676065, 0), App.Vector(2.743947, -0.62589, 0), App.Vector(2.764215, -0.576067, 0), App.Vector(2.792196, -0.525726, 0), App.Vector(2.82894, -0.473999, 0), App.Vector(2.875217, -0.420431, 0), App.Vector(2.910665, -0.38559, 0), App.Vector(2.929381, -0.367195, 0)], [4, 1, 1, 1, 1, 1, 1, 1, 4], [0, 0.858281714, 1.717966888, 2.583508476, 3.4729293, 4.427298488, 5.488583878, 6.674047936, 8], False, 3, [1, 1, 1, 1, 1, 1, 1, 1, 1, 1, 1], False),  # 32
    Part.BSplineCurve([App.Vector(3.185696, -1.179389, 0), App.Vector(3.152897, -1.17829, 0), App.Vector(3.089647, -1.17617, 0), App.Vector(2.999849, -1.15302, 0), App.Vector(2.919028, -1.116569, 0), App.Vector(2.849584, -1.065484, 0), App.Vector(2.791765, -1.004958, 0), App.Vector(2.749941, -0.935309, 0), App.Vector(2.724767, -0.858399, 0), App.Vector(2.721696, -0.804749, 0), App.Vector(2.720131, -0.777426, 0)], [4, 1, 1, 1, 1, 1, 1, 1, 4], [0, 1.14458467, 2.207223713, 3.21896685, 4.227309161, 5.202851033, 6.127160689, 7.046193047, 8], False, 3, [1, 1, 1, 1, 1, 1, 1, 1, 1, 1, 1], False),  # 33
    Part.BSplineCurve([App.Vector(3.805813, -0.772338, 0), App.Vector(3.790259, -0.792376, 0), App.Vector(3.760306, -0.830963, 0), App.Vector(3.714832, -0.885003, 0), App.Vector(3.67197, -0.934367, 0), App.Vector(3.629743, -0.977243, 0), App.Vector(3.590378, -1.01598, 0), App.Vector(3.552172, -1.049145, 0), App.Vector(3.515674, -1.077062, 0), App.Vector(3.469666, -1.106856, 0), App.Vector(3.411865, -1.13639, 0), App.Vector(3.339308, -1.161381, 0), App.Vector(3.263483, -1.176398, 0), App.Vector(3.21184, -1.178384, 0), App.Vector(3.185696, -1.179389, 0)], [4, 1, 1, 1, 1, 1, 1, 1, 1, 1, 1, 1, 4], [0, 1.181633172, 2.275549214, 3.290209073, 4.226197932, 5.078386478, 5.862611352, 6.581680152, 7.217281963, 8.414376989, 9.595101626, 10.782541182, 12], False, 3, [1, 1, 1, 1, 1, 1, 1, 1, 1, 1, 1, 1, 1, 1, 1], False),  # 34
    Part.LineSegment(App.Vector(3.805813, -0.772338, 0), App.Vector(4.0634, -0.967595, 0)),  # 35
    Part.BSplineCurve([App.Vector(3.217497, -1.50503, 0), App.Vector(3.254911, -1.50374, 0), App.Vector(3.329316, -1.501174, 0), App.Vector(3.438762, -1.47886, 0), App.Vector(3.544137, -1.441939, 0), App.Vector(3.628903, -1.400039, 0), App.Vector(3.695245, -1.358191, 0), App.Vector(3.745839, -1.320073, 0), App.Vector(3.797108, -1.27619, 0), App.Vector(3.849467, -1.226425, 0), App.Vector(3.902027, -1.170321, 0), App.Vector(3.95557, -1.108263, 0), App.Vector(4.01022, -1.040629, 0), App.Vector(4.045377, -0.992347, 0), App.Vector(4.0634, -0.967595, 0)], [4, 1, 1, 1, 1, 1, 1, 1, 1, 1, 1, 1, 4], [0, 1.286793592, 2.559021753, 3.825965368, 5.121522368, 5.803751409, 6.523245864, 7.299691795, 8.125521123, 9.008227632, 9.944561021, 10.946284179, 12], False, 3, [1, 1, 1, 1, 1, 1, 1, 1, 1, 1, 1, 1, 1, 1, 1], False),  # 36
    Part.BSplineCurve([App.Vector(2.435195, -0.76407, 0), App.Vector(2.436379, -0.797661, 0), App.Vector(2.438722, -0.864126, 0), App.Vector(2.458534, -0.961218, 0), App.Vector(2.489806, -1.053916, 0), App.Vector(2.533617, -1.141301, 0), App.Vector(2.590093, -1.221099, 0), App.Vector(2.655449, -1.294227, 0), App.Vector(2.733292, -1.355702, 0), App.Vector(2.818702, -1.409416, 0), App.Vector(2.912189, -1.451459, 0), App.Vector(3.010152, -1.483173, 0), App.Vector(3.112747, -1.501143, 0), App.Vector(3.182237, -1.503722, 0), App.Vector(3.217497, -1.50503, 0)], [4, 1, 1, 1, 1, 1, 1, 1, 1, 1, 1, 1, 4], [0, 1.005424448, 1.989358655, 2.955360095, 3.929531133, 4.905563448, 5.876582895, 6.856512386, 7.866279853, 8.892233794, 9.918561126, 10.94386622, 12], False, 3, [1, 1, 1, 1, 1, 1, 1, 1, 1, 1, 1, 1, 1, 1, 1], False),  # 37
    Part.BSplineCurve([App.Vector(2.612644, -0.280696, 0), App.Vector(2.598608, -0.299384, 0), App.Vector(2.571005, -0.336137, 0), App.Vector(2.534569, -0.393582, 0), App.Vector(2.5036, -0.452386, 0), App.Vector(2.479322, -0.512707, 0), App.Vector(2.458879, -0.573699, 0), App.Vector(2.445128, -0.636157, 0), App.Vector(2.436518, -0.6998, 0), App.Vector(2.435637, -0.74263, 0), App.Vector(2.435195, -0.76407, 0)], [4, 1, 1, 1, 1, 1, 1, 1, 4], [0, 1.068054152, 2.10047183, 3.106115577, 4.101338837, 5.06977816, 6.043150881, 7.020423561, 8], False, 3, [1, 1, 1, 1, 1, 1, 1, 1, 1, 1, 1], False),  # 38
    Part.BSplineCurve([App.Vector(3.132907, 0.15116, 0), App.Vector(3.099502, 0.127367, 0), App.Vector(3.035635, 0.081876, 0), App.Vector(2.946319, 0.014363, 0), App.Vector(2.86645, -0.047363, 0), App.Vector(2.796383, -0.103882, 0), App.Vector(2.736149, -0.155201, 0), App.Vector(2.685273, -0.200828, 0), App.Vector(2.645052, -0.241998, 0), App.Vector(2.622686, -0.268705, 0), App.Vector(2.612644, -0.280696, 0)], [4, 1, 1, 1, 1, 1, 1, 1, 4], [0, 1.452282411, 2.77665338, 3.964542531, 5.026858415, 5.96415736, 6.766646006, 7.446254459, 8], False, 3, [1, 1, 1, 1, 1, 1, 1, 1, 1, 1, 1], False),  # 39
    Part.BSplineCurve([App.Vector(3.705322, 0.65743, 0), App.Vector(3.691107, 0.639244, 0), App.Vector(3.661263, 0.601066, 0), App.Vector(3.609958, 0.544238, 0), App.Vector(3.549754, 0.48562, 0), App.Vector(3.482713, 0.422974, 0), App.Vector(3.406392, 0.359213, 0), App.Vector(3.323182, 0.291296, 0), App.Vector(3.230959, 0.221808, 0), App.Vector(3.16628, 0.175206, 0), App.Vector(3.132907, 0.15116, 0)], [4, 1, 1, 1, 1, 1, 1, 1, 4], [0, 0.722233717, 1.516239348, 2.393582979, 3.351407094, 4.387010283, 5.505090956, 6.712668013, 8], False, 3, [1, 1, 1, 1, 1, 1, 1, 1, 1, 1, 1], False),  # 40
    Part.BSplineCurve([App.Vector(3.81917, 0.969078, 0), App.Vector(3.817832, 0.942643, 0), App.Vector(3.815113, 0.888905, 0), App.Vector(3.792134, 0.809621, 0), App.Vector(3.755985, 0.73116, 0), App.Vector(3.722636, 0.682627, 0), App.Vector(3.705322, 0.65743, 0)], [4, 1, 1, 1, 4], [0, 0.938893495, 1.908633276, 2.914225137, 4], False, 3, [1, 1, 1, 1, 1, 1, 1], False),  # 41
    Part.BSplineCurve([App.Vector(3.197144, 1.507149, 0), App.Vector(3.224982, 1.506374, 0), App.Vector(3.280169, 1.504837, 0), App.Vector(3.361415, 1.490068, 0), App.Vector(3.44032, 1.467378, 0), App.Vector(3.515258, 1.434884, 0), App.Vector(3.585195, 1.395569, 0), App.Vector(3.646523, 1.348084, 0), App.Vector(3.699542, 1.29492, 0), App.Vector(3.742912, 1.235608, 0), App.Vector(3.776186, 1.171821, 0), App.Vector(3.80176, 1.106347, 0), App.Vector(3.815953, 1.038158, 0), App.Vector(3.818091, 0.992247, 0), App.Vector(3.81917, 0.969078, 0)], [4, 1, 1, 1, 1, 1, 1, 1, 1, 1, 1, 1, 4], [0, 1.095163259, 2.171163733, 3.241058638, 4.321873601, 5.38011039, 6.391990106, 7.366004449, 8.327778327, 9.272591725, 10.192022065, 11.087607919, 12], False, 3, [1, 1, 1, 1, 1, 1, 1, 1, 1, 1, 1, 1, 1, 1, 1], False),  # 42
    Part.BSplineCurve([App.Vector(2.500069, 0.977983, 0), App.Vector(2.525032, 1.019769, 0), App.Vector(2.57286, 1.099832, 0), App.Vector(2.652644, 1.208016, 0), App.Vector(2.735315, 1.299966, 0), App.Vector(2.821484, 1.375147, 0), App.Vector(2.910625, 1.434337, 0), App.Vector(3.003321, 1.476249, 0), App.Vector(3.099258, 1.502389, 0), App.Vector(3.164549, 1.505564, 0), App.Vector(3.197144, 1.507149, 0)], [4, 1, 1, 1, 1, 1, 1, 1, 4], [0, 1.272034388, 2.437168799, 3.508375237, 4.49857839, 5.41946034, 6.295179144, 7.148887113, 8], False, 3, [1, 1, 1, 1, 1, 1, 1, 1, 1, 1, 1], False),  # 43
], False)
sketch2.addConstraint([
    Sketcher.Constraint("Block", 1),
    Sketcher.Constraint("Block", 2),
    Sketcher.Constraint("Block", 3),
    Sketcher.Constraint("Block", 4),
    Sketcher.Constraint("Block", 5),
    Sketcher.Constraint("Block", 9),
    Sketcher.Constraint("Block", 10),
    Sketcher.Constraint("Block", 11),
    Sketcher.Constraint("Block", 12),
    Sketcher.Constraint("Block", 18),
    Sketcher.Constraint("Block", 19),
    Sketcher.Constraint("Block", 20),
    Sketcher.Constraint("Block", 21),
    Sketcher.Constraint("Block", 23),
    Sketcher.Constraint("Block", 24),
    Sketcher.Constraint("Block", 28),
    Sketcher.Constraint("Block", 29),
    Sketcher.Constraint("Block", 30),
    Sketcher.Constraint("Block", 31),
    Sketcher.Constraint("Block", 32),
    Sketcher.Constraint("Block", 33),
    Sketcher.Constraint("Block", 34),
    Sketcher.Constraint("Block", 36),
    Sketcher.Constraint("Block", 37),
    Sketcher.Constraint("Block", 38),
    Sketcher.Constraint("Block", 39),
    Sketcher.Constraint("Block", 40),
    Sketcher.Constraint("Block", 41),
    Sketcher.Constraint("Block", 42),
    Sketcher.Constraint("Block", 43),
    Sketcher.Constraint("Coincident", 0, 2, 1, 2),
    Sketcher.Constraint("Coincident", 5, 1, 6, 1),
    Sketcher.Constraint("Coincident", 6, 2, 7, 1),
    Sketcher.Constraint("Coincident", 7, 2, 8, 1),
    Sketcher.Constraint("Coincident", 8, 2, 9, 2),
    Sketcher.Constraint("Coincident", 12, 1, 0, 1),
    Sketcher.Constraint("Coincident", 13, 2, 14, 1),
    Sketcher.Constraint("Coincident", 14, 2, 15, 1),
    Sketcher.Constraint("Coincident", 15, 2, 16, 1),
    Sketcher.Constraint("Coincident", 16, 2, 17, 1),
    Sketcher.Constraint("Coincident", 17, 2, 18, 2),
    Sketcher.Constraint("Coincident", 21, 1, 13, 1),
    Sketcher.Constraint("Coincident", 22, 2, 23, 2),
    Sketcher.Constraint("Coincident", 24, 1, 25, 1),
    Sketcher.Constraint("Coincident", 25, 2, 26, 1),
    Sketcher.Constraint("Coincident", 26, 2, 22, 1),
    Sketcher.Constraint("Coincident", 27, 2, 28, 2),
    Sketcher.Constraint("Coincident", 34, 1, 35, 1),
    Sketcher.Constraint("Coincident", 35, 2, 36, 2),
    Sketcher.Constraint("Coincident", 43, 1, 27, 1),
    Sketcher.Constraint("Horizontal", 6),
    Sketcher.Constraint("Vertical", 7),
    Sketcher.Constraint("Horizontal", 8),
    Sketcher.Constraint("Horizontal", 13),
    Sketcher.Constraint("Vertical", 14),
    Sketcher.Constraint("Horizontal", 15),
    Sketcher.Constraint("Vertical", 16),
    Sketcher.Constraint("Horizontal", 17),
    Sketcher.Constraint("Horizontal", 22),
    Sketcher.Constraint("Vertical", 26),
    Sketcher.Constraint("Vertical", 16, 2, 25, 2),
    Sketcher.Constraint("Equal", 8, 26),
    Sketcher.Constraint("DistanceY", 14, 1, 14, 2, Q("3.175 mm")),
    Sketcher.Constraint("DistanceX", 6, 2, 6, 1, Q("1.343269 mm")),
    Sketcher.Constraint("DistanceX", 13, 2, 13, 1, Q("0.622661 mm")),
    Sketcher.Constraint("DistanceX", 17, 1, 17, 2, Q("0.227058 mm")),
])
pad2 = body.newObject("PartDesign::Pad", "Pad001")
pad2.Profile = sketch2
pad2.Length = 1
pad2.Reversed = True

doc.recompute()
